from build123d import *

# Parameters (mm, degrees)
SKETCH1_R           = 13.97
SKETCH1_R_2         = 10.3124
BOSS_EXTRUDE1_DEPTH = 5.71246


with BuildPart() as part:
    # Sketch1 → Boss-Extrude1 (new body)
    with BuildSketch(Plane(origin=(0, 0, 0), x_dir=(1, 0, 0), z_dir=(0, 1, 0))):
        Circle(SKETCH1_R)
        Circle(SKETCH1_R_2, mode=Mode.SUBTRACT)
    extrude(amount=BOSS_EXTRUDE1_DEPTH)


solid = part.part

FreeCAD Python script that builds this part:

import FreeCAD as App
import Part
import Sketcher
from FreeCAD import Vector
Q = App.Units.Quantity

doc = App.newDocument("Part")
body = doc.addObject("PartDesign::Body", "Body")

sketch1 = body.newObject("Sketcher::SketchObject", "Sketch")
sketch1.AttachmentSupport = (doc.getObject("XZ_Plane"), [""])
sketch1.MapMode = "FlatFace"
sketch1.addGeometry(Part.Circle(Vector(0, 0, 0), Vector(0, 0, 1), 13.97), False)
sketch1.addGeometry(Part.Circle(Vector(0, 0, 0), Vector(0, 0, 1), 10.3124), False)
sketch1.addConstraint(Sketcher.Constraint("Coincident", 0, 3, -1, 1))
sketch1.addConstraint(Sketcher.Constraint("Coincident", 1, 3, -1, 1))
sketch1.addConstraint(Sketcher.Constraint("Diameter", 0, Q("1.1 in")))
sketch1.addConstraint(Sketcher.Constraint("Diameter", 1, Q("0.812 in")))
pad1 = body.newObject("PartDesign::Pad", "Pad")
pad1.Profile = sketch1
pad1.Length = Q("0.2249 in")
pad1.Reversed = True

doc.recompute()
